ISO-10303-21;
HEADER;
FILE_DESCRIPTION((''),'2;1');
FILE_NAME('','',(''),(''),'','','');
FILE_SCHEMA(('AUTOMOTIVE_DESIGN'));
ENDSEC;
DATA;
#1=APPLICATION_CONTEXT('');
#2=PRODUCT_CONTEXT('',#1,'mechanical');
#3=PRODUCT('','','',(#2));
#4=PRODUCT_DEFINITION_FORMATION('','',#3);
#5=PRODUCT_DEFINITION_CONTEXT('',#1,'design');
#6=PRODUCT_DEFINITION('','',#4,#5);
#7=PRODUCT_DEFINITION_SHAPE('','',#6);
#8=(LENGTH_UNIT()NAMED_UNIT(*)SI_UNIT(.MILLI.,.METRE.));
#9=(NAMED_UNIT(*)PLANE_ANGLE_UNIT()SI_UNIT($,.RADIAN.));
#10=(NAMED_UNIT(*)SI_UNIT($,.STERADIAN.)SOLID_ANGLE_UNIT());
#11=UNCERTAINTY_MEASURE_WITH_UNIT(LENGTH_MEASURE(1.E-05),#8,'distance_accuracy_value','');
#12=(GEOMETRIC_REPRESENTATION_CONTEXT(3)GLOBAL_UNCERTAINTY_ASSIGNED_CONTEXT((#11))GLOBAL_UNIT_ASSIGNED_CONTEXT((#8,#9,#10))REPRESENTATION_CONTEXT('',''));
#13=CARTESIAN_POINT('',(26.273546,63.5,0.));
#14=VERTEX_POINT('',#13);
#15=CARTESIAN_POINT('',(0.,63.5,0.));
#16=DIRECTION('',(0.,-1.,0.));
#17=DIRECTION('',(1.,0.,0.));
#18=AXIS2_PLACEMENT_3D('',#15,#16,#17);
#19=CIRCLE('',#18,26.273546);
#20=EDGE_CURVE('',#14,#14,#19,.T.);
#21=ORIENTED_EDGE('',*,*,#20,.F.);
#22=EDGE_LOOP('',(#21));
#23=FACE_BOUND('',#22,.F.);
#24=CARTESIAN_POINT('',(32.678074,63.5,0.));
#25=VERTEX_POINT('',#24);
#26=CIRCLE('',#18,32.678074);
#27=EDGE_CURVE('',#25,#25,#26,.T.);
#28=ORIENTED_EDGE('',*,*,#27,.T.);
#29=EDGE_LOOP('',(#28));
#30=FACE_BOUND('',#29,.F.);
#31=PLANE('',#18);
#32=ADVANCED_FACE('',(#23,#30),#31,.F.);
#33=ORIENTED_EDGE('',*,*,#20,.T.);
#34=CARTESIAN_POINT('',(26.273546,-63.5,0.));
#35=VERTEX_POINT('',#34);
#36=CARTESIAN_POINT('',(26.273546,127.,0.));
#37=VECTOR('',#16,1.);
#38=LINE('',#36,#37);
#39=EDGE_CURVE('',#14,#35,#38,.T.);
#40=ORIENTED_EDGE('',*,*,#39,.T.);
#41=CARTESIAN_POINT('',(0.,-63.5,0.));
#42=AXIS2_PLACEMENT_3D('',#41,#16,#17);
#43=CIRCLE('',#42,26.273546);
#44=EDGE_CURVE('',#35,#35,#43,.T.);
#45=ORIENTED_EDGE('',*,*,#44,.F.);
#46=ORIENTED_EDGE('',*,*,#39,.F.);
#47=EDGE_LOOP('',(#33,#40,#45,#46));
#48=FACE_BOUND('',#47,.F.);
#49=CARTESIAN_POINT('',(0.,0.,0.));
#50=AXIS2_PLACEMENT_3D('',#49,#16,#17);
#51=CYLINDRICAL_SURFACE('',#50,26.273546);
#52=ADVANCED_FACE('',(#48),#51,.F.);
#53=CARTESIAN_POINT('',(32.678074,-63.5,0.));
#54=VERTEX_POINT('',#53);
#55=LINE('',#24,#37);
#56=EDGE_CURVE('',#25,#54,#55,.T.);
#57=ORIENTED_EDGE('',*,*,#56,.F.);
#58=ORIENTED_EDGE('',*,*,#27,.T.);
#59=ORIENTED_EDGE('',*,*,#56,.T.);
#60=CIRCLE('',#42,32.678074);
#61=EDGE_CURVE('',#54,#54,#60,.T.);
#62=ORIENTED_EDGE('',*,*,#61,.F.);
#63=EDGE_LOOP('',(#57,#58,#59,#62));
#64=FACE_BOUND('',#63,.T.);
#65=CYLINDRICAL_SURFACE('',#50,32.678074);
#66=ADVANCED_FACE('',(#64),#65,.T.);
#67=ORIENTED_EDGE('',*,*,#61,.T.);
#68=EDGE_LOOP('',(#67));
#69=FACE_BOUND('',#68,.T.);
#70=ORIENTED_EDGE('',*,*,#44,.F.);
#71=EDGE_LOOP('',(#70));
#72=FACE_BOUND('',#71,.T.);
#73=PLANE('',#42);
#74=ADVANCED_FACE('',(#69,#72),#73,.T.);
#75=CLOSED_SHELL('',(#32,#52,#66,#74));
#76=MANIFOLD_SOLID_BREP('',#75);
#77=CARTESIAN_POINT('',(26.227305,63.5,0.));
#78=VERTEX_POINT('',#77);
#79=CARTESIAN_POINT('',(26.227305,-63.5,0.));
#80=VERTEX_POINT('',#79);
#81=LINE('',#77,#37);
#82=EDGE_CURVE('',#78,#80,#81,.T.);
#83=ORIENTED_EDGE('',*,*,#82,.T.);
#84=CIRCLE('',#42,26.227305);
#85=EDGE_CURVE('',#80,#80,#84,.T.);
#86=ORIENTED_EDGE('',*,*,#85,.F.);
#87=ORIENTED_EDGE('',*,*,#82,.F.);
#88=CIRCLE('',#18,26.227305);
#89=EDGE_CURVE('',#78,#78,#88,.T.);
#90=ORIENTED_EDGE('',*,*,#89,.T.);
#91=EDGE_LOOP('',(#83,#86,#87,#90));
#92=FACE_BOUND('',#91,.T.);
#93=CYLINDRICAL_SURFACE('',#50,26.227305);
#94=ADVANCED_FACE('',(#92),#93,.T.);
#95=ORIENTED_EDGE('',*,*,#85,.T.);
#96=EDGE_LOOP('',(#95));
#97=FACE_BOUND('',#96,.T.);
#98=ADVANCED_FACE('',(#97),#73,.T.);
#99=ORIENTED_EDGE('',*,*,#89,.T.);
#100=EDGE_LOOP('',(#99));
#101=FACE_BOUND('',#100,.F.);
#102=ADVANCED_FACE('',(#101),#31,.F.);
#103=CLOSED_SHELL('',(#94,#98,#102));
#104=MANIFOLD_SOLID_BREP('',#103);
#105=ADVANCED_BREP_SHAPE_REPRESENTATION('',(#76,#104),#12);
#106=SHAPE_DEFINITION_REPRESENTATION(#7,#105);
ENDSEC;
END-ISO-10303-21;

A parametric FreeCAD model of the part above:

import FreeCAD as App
import Part
import Sketcher
Q = App.Units.Quantity

doc = App.newDocument("Part")
body = doc.addObject("PartDesign::Body", "Body")

# Sketch on XZ plane
sketch1 = body.newObject("Sketcher::SketchObject", "Sketch")
sketch1.AttachmentSupport = (doc.getObject("XZ_Plane"), [""])
sketch1.MapMode = "FlatFace"
sketch1.addGeometry(Part.Circle(App.Vector(0, 0, 0), App.Vector(0, 0, 1), 33), False)
sketch1.addConstraint(Sketcher.Constraint("Coincident", 0, 3, -1, 1))
sketch1.addConstraint(Sketcher.Constraint("Diameter", 0, Q("65.356148 mm")))
pad1 = body.newObject("PartDesign::Pad", "Pad")
pad1.Profile = sketch1
pad1.Length = Q("5 in")
pad1.Midplane = True

# Sketch on XZ plane
sketch2 = body.newObject("Sketcher::SketchObject", "Sketch001")
sketch2.AttachmentSupport = (doc.getObject("XZ_Plane"), [""])
sketch2.MapMode = "FlatFace"
sketch2.addGeometry(Part.Circle(App.Vector(0, 0, 0), App.Vector(0, 0, 1), 26), False)
sketch2.addConstraint(Sketcher.Constraint("Coincident", 0, 3, -1, 1))
sketch2.addConstraint(Sketcher.Constraint("Diameter", 0, Q("52.547092 mm")))
pocket1 = body.newObject("PartDesign::Pocket", "Pocket")
pocket1.Profile = sketch2
pocket1.Length = Q("10 in")
pocket1.Midplane = True
body2 = doc.addObject("PartDesign::Body", "Body001")

# Sketch on XZ plane
sketch3 = body2.newObject("Sketcher::SketchObject", "Sketch002")
sketch3.AttachmentSupport = (doc.getObject("XZ_Plane001"), [""])
sketch3.MapMode = "FlatFace"
sketch3.addGeometry(Part.Circle(App.Vector(0, 0, 0), App.Vector(0, 0, 1), 26), False)
sketch3.addConstraint(Sketcher.Constraint("Coincident", 0, 3, -1, 1))
sketch3.addConstraint(Sketcher.Constraint("Diameter", 0, Q("52.45461 mm")))
pad2 = body2.newObject("PartDesign::Pad", "Pad001")
pad2.Profile = sketch3
pad2.Length = Q("5 in")
pad2.Midplane = True

doc.recompute()
